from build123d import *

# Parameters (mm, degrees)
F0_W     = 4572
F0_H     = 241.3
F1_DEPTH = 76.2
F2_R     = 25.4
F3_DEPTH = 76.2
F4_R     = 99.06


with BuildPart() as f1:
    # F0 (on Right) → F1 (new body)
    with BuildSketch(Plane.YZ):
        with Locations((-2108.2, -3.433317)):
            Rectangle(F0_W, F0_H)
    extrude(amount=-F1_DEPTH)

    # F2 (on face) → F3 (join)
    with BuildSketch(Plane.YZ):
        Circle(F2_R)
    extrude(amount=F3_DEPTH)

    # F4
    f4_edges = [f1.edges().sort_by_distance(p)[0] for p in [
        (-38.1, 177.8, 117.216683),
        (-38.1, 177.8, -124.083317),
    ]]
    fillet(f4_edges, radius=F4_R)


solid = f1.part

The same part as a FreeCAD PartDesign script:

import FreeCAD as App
import Part
import Sketcher

V = App.Vector
Q = App.Units.Quantity


def edges_at(feature, points):
    """Names of the edges that pass closest to the given points."""
    edges = feature.Shape.Edges
    near = lambda p: min(range(len(edges)), key=lambda i: edges[i].distToShape(Part.Vertex(*p))[0])
    return sorted({f"Edge{near(p) + 1}" for p in points})


def add_polygon(sketch, points):
    """Adds a closed chain of lines whose ends are joined by coincident constraints."""
    first, n = sketch.GeometryCount, len(points)
    for a, b in zip(points, points[1:] + points[:1]):
        sketch.addGeometry(Part.LineSegment(App.Vector(*a, 0), App.Vector(*b, 0)), False)
    for i in range(n):
        sketch.addConstraint(Sketcher.Constraint("Coincident", first + i, 2, first + (i + 1) % n, 1))

doc = App.newDocument("Part")
params = doc.addObject("Spreadsheet::Sheet", "Params")
for row, (alias, value) in enumerate([
    ("sketch1_width", "180 in"),
    ("sketch1_height", "9.5 in"),
    ("pad1_length", "3 in"),
    ("sketch2_diameter", "2 in"),
    ("pad2_length", "3 in"),
    ("fillet_radius", "3.9 in"),
], start=1):
    params.set(f"A{row}", alias)
    params.set(f"B{row}", "=" + value)
    params.setAlias(f"B{row}", alias)

body = doc.addObject("PartDesign::Body", "Body")

# Sketch on YZ plane
sketch1 = body.newObject("Sketcher::SketchObject", "Sketch")
sketch1.AttachmentSupport = (doc.getObject("YZ_Plane"), [""])
sketch1.MapMode = "FlatFace"
add_polygon(sketch1, [(-4394, 117), (-4394, -124), (178, -124), (178, 117)])  # lines 0-3
sketch1.addConstraint([
    Sketcher.Constraint("Vertical", 0),
    Sketcher.Constraint("Horizontal", 1),
    Sketcher.Constraint("Vertical", 2),
    Sketcher.Constraint("Horizontal", 3),
    Sketcher.Constraint("DistanceX", 1, 1, 1, 2, Q("180 in")),
    Sketcher.Constraint("DistanceY", 0, 2, 0, 1, Q("9.5 in")),
    Sketcher.Constraint("DistanceX", 0, 2, -1, 1, Q("173 in")),
    Sketcher.Constraint("DistanceY", 0, 2, -1, 1, 124.083317),
])
sketch1.setExpression("Constraints[8]", "Params.sketch1_width")
sketch1.setExpression("Constraints[9]", "Params.sketch1_height")
pad1 = body.newObject("PartDesign::Pad", "Pad")
pad1.Profile = sketch1
pad1.setExpression("Length", "Params.pad1_length")
pad1.Reversed = True

# Sketch on YZ plane
sketch2 = body.newObject("Sketcher::SketchObject", "Sketch001")
sketch2.AttachmentSupport = (doc.getObject("YZ_Plane"), [""])
sketch2.MapMode = "FlatFace"
sketch2.addGeometry(Part.Circle(V(0, 0, 0), V(0, 0, 1), 25), False)
sketch2.addConstraint([
    Sketcher.Constraint("Coincident", 0, 3, -1, 1),
    Sketcher.Constraint("Diameter", 0, Q("2 in")),
])
sketch2.setExpression("Constraints[1]", "Params.sketch2_diameter")
pad2 = body.newObject("PartDesign::Pad", "Pad001")
pad2.Profile = sketch2
pad2.setExpression("Length", "Params.pad2_length")
doc.recompute()

fillet = body.newObject("PartDesign::Fillet", "Fillet")
fillet.Base = (pad2, edges_at(pad2, [(-38.1, 177.8, 117.217), (-38.1, 177.8, -124.083)]))
fillet.setExpression("Radius", "Params.fillet_radius")

doc.recompute()
